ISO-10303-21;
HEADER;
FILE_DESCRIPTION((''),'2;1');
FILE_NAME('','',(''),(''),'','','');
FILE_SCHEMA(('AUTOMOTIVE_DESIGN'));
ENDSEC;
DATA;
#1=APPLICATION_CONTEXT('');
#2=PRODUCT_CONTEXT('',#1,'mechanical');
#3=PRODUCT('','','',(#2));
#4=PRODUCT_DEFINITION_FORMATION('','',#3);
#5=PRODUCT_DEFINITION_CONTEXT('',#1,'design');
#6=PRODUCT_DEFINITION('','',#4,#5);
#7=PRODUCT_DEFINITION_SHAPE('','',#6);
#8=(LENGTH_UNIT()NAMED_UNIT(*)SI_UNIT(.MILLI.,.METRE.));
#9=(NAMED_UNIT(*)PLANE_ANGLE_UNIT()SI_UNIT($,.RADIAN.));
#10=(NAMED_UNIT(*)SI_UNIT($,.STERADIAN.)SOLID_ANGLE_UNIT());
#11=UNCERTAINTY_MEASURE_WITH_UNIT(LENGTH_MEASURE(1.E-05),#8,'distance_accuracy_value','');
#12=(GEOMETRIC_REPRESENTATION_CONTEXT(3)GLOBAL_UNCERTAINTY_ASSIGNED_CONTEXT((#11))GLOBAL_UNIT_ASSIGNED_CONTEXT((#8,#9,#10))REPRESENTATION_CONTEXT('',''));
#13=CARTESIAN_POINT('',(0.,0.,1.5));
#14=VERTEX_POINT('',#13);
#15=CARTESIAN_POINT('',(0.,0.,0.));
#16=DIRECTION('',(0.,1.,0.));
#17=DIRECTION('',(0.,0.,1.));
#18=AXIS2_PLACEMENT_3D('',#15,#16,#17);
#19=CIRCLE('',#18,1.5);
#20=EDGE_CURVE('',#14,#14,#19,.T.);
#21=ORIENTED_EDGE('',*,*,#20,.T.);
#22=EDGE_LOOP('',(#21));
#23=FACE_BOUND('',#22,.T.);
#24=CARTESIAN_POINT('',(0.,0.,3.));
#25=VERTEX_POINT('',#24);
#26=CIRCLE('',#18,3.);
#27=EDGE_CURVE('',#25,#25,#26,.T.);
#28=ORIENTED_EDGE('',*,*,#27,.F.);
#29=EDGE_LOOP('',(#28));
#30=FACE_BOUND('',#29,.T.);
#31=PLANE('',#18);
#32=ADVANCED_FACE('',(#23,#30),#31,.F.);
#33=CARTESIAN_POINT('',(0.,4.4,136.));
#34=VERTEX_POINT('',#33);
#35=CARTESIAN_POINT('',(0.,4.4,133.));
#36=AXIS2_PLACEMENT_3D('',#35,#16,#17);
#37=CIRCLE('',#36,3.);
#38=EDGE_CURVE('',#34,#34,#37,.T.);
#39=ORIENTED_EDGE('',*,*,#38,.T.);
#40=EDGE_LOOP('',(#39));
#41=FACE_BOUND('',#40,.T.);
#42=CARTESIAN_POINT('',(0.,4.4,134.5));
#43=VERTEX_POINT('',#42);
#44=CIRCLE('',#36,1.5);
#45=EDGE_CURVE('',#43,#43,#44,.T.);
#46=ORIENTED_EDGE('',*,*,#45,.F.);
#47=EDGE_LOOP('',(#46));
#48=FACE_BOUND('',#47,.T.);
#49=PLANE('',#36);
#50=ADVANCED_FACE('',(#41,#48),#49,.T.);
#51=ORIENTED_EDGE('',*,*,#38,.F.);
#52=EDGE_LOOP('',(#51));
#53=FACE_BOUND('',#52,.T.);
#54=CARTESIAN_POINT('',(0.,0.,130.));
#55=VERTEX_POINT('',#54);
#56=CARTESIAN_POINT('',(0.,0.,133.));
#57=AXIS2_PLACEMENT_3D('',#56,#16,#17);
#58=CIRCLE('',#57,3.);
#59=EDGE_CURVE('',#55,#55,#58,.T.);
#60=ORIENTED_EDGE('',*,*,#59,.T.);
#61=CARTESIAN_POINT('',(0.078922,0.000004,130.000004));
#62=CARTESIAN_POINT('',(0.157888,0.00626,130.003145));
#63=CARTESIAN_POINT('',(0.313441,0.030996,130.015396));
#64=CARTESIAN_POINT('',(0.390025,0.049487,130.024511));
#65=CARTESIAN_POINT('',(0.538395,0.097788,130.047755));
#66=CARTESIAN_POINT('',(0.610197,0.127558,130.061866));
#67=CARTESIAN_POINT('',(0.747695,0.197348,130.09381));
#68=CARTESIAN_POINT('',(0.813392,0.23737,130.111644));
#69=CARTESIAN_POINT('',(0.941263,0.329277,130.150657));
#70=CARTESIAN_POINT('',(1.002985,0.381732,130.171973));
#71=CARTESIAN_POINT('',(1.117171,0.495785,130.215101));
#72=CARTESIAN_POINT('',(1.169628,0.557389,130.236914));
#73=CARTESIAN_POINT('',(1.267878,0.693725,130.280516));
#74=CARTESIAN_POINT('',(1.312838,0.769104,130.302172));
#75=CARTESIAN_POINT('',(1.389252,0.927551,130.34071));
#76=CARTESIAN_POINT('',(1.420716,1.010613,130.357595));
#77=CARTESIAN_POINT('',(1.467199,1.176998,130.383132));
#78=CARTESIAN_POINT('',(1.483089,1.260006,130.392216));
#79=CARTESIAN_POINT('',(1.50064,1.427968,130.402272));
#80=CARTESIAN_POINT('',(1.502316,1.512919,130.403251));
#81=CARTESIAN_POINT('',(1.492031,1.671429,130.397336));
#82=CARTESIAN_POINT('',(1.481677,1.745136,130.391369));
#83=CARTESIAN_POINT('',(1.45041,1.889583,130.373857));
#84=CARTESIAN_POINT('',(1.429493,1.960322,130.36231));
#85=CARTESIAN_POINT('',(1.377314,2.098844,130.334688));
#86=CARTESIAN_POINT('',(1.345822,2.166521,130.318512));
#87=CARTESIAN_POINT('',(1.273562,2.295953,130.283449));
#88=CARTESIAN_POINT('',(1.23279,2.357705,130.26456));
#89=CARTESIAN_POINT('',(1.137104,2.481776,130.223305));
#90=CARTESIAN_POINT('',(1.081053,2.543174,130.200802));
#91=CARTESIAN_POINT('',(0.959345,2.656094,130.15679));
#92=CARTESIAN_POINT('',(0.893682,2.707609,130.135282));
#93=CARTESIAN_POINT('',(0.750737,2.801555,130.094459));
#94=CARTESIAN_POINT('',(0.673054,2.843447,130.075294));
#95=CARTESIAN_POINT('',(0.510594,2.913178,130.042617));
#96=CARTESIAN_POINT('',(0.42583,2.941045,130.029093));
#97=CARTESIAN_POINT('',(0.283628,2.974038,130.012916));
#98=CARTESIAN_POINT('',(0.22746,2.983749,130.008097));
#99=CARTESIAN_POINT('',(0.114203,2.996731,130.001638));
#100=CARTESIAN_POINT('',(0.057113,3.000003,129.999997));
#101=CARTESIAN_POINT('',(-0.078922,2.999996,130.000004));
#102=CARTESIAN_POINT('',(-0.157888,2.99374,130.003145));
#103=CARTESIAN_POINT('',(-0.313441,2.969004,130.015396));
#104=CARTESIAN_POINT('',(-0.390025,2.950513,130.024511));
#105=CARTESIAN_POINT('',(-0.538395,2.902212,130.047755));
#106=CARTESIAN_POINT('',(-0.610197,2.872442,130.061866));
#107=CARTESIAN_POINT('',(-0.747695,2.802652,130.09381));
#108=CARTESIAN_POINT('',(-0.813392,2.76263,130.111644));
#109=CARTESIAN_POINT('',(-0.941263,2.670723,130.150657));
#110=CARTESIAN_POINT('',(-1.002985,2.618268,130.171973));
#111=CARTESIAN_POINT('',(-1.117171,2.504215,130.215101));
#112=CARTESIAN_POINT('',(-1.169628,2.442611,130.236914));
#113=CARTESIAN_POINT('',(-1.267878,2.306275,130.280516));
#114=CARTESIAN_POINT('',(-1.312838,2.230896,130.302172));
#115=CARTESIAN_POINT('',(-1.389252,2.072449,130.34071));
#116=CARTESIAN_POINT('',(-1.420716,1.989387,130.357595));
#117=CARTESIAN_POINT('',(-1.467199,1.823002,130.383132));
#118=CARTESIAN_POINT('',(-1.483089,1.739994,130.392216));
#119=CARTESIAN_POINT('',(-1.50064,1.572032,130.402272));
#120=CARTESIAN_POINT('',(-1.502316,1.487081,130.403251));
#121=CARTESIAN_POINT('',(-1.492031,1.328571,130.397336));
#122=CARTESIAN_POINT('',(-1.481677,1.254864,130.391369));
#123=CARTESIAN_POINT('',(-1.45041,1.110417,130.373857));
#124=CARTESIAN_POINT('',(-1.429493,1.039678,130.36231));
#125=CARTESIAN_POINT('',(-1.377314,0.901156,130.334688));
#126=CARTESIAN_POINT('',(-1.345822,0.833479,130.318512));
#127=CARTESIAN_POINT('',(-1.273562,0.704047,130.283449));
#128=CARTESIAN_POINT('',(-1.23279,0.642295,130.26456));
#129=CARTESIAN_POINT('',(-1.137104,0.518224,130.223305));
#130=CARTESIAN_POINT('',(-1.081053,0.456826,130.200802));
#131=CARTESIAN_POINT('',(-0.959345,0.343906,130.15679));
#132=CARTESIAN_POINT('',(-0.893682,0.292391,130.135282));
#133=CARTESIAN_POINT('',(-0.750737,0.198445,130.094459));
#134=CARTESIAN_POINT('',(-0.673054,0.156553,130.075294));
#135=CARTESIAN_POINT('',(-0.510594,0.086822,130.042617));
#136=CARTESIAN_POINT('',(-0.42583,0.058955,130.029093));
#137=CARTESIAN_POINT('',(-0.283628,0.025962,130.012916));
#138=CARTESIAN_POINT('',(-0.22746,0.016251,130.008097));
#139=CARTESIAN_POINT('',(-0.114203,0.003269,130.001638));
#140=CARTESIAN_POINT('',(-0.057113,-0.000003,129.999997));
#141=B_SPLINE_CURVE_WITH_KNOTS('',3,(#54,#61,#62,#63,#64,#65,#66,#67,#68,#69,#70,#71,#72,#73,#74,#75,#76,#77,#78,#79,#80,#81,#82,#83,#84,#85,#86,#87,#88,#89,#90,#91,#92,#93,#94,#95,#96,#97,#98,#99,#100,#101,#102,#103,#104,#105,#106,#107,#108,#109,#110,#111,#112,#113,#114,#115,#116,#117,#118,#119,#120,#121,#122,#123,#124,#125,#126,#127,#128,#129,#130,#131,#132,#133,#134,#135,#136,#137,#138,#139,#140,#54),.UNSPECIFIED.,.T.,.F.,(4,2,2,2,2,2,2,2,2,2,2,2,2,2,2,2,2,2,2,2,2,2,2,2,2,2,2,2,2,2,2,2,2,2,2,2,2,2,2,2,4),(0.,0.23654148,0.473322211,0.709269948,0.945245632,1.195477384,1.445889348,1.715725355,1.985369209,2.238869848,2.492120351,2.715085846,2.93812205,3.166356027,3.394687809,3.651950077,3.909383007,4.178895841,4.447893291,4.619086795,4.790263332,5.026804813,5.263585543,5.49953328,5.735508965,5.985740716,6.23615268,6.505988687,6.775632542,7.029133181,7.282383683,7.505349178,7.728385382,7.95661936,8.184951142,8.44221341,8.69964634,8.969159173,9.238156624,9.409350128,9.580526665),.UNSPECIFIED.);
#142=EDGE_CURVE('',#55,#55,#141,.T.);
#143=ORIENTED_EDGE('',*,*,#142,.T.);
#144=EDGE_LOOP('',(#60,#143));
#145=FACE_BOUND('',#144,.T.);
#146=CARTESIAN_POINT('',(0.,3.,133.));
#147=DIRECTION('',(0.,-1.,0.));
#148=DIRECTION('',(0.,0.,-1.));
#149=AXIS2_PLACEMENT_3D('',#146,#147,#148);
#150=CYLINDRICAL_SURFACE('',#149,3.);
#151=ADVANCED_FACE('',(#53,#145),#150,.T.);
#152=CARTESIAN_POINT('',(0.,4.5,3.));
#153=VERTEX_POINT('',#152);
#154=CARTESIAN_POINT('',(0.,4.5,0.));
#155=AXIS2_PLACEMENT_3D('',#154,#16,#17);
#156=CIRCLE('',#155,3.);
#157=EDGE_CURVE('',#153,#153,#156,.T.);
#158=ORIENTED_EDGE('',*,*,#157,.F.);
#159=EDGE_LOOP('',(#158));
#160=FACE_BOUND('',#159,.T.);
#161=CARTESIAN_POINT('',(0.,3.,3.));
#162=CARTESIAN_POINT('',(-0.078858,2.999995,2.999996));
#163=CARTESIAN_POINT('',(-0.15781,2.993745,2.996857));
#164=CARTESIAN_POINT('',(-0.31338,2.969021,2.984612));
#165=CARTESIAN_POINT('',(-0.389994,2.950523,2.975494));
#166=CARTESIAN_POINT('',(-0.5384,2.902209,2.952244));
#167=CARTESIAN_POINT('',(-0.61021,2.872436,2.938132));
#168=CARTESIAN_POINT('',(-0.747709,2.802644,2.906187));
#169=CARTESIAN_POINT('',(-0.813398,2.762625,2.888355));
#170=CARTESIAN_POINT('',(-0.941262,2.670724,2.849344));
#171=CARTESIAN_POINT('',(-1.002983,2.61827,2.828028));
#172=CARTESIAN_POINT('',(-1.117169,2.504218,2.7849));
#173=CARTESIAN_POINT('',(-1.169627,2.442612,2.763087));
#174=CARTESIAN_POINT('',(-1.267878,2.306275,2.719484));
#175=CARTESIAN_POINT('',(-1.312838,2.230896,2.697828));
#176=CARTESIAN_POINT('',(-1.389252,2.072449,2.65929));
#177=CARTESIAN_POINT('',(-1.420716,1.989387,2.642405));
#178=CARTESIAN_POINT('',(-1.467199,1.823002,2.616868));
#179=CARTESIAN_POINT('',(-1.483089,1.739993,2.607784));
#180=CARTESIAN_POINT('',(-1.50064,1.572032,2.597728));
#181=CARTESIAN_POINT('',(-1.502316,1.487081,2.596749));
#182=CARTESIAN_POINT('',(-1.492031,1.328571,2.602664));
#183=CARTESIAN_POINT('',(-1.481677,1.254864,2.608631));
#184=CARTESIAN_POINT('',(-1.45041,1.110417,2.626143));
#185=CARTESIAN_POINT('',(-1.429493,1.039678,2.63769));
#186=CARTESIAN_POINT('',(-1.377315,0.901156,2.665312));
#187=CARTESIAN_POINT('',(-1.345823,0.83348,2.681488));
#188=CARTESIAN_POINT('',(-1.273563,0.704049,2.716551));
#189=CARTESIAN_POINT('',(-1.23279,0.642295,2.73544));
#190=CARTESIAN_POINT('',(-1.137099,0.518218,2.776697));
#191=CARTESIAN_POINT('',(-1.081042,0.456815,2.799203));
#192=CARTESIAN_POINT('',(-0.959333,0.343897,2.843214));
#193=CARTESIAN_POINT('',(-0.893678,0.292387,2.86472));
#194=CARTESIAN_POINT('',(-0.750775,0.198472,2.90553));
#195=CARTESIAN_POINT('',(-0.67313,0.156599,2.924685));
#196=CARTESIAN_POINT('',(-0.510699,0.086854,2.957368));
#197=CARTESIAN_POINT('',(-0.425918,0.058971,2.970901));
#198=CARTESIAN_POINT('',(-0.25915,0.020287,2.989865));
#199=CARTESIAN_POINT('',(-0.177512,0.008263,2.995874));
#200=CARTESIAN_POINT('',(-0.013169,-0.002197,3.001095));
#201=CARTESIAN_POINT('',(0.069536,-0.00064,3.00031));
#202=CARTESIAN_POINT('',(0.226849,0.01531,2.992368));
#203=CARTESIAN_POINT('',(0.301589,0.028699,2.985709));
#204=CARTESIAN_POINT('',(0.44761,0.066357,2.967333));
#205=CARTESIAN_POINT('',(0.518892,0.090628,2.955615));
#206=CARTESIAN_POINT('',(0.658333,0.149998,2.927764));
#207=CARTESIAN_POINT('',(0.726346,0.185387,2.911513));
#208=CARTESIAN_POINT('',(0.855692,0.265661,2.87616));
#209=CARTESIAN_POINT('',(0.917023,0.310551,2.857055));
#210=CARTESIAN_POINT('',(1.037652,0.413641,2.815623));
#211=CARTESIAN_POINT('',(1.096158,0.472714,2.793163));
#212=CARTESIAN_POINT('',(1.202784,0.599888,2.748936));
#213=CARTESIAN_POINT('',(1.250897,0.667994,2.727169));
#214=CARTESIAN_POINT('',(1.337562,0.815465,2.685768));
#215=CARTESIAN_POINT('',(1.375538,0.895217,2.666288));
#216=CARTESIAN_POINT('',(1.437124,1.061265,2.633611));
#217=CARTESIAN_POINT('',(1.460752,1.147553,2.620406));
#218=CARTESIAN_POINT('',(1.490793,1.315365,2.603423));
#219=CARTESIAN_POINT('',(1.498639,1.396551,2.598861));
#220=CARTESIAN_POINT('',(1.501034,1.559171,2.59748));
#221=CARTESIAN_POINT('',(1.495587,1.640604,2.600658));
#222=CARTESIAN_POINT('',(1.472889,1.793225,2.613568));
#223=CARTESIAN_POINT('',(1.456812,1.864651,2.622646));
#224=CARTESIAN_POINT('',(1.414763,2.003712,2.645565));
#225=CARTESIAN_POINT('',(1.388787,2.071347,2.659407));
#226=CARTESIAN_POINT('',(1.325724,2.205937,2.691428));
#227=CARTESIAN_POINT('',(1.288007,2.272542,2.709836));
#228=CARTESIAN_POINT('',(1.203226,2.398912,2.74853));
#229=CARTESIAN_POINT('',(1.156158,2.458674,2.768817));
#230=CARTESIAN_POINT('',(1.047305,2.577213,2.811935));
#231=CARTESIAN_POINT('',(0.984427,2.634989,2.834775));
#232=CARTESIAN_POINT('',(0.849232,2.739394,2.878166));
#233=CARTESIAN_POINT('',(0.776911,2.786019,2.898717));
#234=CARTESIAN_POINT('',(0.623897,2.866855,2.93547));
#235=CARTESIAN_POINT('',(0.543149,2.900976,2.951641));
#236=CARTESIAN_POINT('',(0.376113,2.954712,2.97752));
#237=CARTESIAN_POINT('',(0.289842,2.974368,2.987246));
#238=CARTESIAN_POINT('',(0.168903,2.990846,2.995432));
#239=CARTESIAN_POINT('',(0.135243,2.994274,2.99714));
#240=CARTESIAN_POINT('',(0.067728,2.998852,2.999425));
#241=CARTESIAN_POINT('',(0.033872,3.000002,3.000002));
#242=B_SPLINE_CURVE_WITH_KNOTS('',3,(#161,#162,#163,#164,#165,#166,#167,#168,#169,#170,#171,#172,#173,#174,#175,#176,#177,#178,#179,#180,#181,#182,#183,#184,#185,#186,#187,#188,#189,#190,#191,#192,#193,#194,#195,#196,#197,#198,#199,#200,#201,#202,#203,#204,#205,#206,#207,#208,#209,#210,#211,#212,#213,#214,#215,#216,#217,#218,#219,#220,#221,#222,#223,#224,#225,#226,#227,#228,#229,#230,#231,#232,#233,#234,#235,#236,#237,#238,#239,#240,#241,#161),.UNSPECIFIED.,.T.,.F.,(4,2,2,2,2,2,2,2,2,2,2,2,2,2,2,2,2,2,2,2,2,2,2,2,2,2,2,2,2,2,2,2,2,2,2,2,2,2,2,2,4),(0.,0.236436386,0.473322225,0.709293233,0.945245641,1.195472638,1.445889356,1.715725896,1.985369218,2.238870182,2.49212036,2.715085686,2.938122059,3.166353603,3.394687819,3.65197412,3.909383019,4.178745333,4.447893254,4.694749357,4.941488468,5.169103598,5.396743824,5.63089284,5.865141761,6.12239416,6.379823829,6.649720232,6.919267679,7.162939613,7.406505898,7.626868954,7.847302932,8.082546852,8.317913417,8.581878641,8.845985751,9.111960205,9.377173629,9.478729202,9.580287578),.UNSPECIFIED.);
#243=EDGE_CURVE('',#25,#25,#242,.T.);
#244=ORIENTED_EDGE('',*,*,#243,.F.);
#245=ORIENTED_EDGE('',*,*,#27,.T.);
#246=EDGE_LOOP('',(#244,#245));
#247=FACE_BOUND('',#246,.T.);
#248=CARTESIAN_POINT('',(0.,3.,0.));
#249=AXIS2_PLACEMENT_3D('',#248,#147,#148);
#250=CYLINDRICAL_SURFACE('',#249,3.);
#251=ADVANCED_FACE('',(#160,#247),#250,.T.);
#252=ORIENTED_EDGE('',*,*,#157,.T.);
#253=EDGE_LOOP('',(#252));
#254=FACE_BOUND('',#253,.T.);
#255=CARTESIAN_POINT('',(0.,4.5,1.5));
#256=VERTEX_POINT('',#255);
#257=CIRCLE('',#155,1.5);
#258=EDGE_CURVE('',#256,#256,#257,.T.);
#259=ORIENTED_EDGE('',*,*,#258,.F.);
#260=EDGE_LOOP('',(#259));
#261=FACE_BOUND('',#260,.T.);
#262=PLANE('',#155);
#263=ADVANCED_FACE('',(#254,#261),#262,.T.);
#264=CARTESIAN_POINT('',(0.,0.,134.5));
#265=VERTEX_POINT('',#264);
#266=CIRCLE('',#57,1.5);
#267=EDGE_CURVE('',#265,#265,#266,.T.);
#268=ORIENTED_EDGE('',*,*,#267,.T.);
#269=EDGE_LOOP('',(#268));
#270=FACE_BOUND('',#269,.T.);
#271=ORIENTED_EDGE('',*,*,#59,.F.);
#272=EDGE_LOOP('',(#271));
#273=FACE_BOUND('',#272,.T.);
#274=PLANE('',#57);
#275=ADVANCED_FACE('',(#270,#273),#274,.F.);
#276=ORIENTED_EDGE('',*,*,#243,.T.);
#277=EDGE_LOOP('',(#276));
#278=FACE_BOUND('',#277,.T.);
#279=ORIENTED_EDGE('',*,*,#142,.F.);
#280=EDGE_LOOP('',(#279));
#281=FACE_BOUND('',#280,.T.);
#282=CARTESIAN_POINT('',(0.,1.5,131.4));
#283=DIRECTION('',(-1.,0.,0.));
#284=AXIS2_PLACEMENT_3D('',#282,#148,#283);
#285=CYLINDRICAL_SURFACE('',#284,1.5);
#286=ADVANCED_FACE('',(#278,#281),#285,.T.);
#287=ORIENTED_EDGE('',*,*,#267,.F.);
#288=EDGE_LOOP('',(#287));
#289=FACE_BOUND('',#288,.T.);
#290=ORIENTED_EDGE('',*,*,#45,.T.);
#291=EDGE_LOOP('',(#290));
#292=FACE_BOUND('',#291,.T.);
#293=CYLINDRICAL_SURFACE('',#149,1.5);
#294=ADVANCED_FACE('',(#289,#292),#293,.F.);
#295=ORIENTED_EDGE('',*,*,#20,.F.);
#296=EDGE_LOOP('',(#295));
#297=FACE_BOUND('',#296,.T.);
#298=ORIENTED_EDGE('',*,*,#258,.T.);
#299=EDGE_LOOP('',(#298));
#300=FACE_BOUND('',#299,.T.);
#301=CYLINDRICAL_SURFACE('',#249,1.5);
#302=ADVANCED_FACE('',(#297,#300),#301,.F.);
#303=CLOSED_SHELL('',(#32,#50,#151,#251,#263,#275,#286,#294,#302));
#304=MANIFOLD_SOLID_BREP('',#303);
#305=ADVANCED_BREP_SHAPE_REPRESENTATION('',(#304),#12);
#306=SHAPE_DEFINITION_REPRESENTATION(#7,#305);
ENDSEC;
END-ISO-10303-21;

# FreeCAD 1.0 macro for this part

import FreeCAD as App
import Part
import Sketcher

V = App.Vector
Q = App.Units.Quantity

doc = App.newDocument("Part")
body = doc.addObject("PartDesign::Body", "Body")

# Sketch on XZ plane
sketch1 = body.newObject("Sketcher::SketchObject", "Sketch")
sketch1.AttachmentSupport = (doc.getObject("XZ_Plane"), [""])
sketch1.MapMode = "FlatFace"
sketch1.addGeometry([
    Part.Circle(V(0, 0, 0), V(0, 0, 1), 3),
    Part.Circle(V(0, 0, 0), V(0, 0, 1), 1.5),
], False)
sketch1.addConstraint([
    Sketcher.Constraint("Coincident", 0, 3, -1, 1),
    Sketcher.Constraint("Coincident", 1, 3, -1, 1),
    Sketcher.Constraint("Diameter", 0, Q("6 mm")),
    Sketcher.Constraint("Diameter", 1, Q("3 mm")),
])
pad1 = body.newObject("PartDesign::Pad", "Pad")
pad1.Profile = sketch1
pad1.Length = 3
pad1.Reversed = True
body2 = doc.addObject("PartDesign::Body", "Body001")

# Sketch on XZ plane
sketch2 = body2.newObject("Sketcher::SketchObject", "Sketch001")
sketch2.AttachmentSupport = (doc.getObject("XZ_Plane001"), [""])
sketch2.MapMode = "FlatFace"
sketch2.addGeometry([
    Part.Circle(V(0, 133, 0), V(0, 0, 1), 3),
    Part.Circle(V(0, 133, 0), V(0, 0, 1), 1.5),
], False)
sketch2.addConstraint([
    Sketcher.Constraint("Coincident", 1, 3, 0, 3),
    Sketcher.Constraint("PointOnObject", 0, 3, -2),
    Sketcher.Constraint("Diameter", 0, Q("6 mm")),
    Sketcher.Constraint("Diameter", 1, Q("3 mm")),
    Sketcher.Constraint("DistanceY", -1, 1, 0, 3, Q("133 mm")),
])
pad2 = body2.newObject("PartDesign::Pad", "Pad001")
pad2.Profile = sketch2
pad2.Length = 3
pad2.Reversed = True
body.AllowCompound = True
doc.recompute()

boolean = body.newObject("PartDesign::Boolean", "Boolean")
boolean.Type = "Fuse"
boolean.addObjects([body2])

# Sketch on XY plane
sketch3 = body.newObject("Sketcher::SketchObject", "Sketch002")
sketch3.AttachmentSupport = (doc.getObject("XY_Plane"), [""])
sketch3.MapMode = "FlatFace"
sketch3.AttachmentOffset = App.Placement(V(0, 0, 1.6), App.Rotation())
sketch3.addGeometry(Part.Circle(V(0, 1.5, 0), V(0, 0, 1), 1.5), False)
sketch3.addConstraint([
    Sketcher.Constraint("PointOnObject", 0, 3, -2),
    Sketcher.Constraint("Diameter", 0, Q("3 mm")),
    Sketcher.Constraint("DistanceY", -1, 1, 0, 3, Q("1.5 mm")),
])
pad3 = body.newObject("PartDesign::Pad", "Pad002")
pad3.Profile = sketch3
pad3.Length = 129.8

# Sketch on XZ plane
sketch4 = body.newObject("Sketcher::SketchObject", "Sketch003")
sketch4.AttachmentSupport = (doc.getObject("XZ_Plane"), [""])
sketch4.MapMode = "FlatFace"
sketch4.AttachmentOffset = App.Placement(V(0, 0, -3), App.Rotation())
sketch4.addGeometry([
    Part.Circle(V(0, 0, 0), V(0, 0, 1), 3),
    Part.Circle(V(0, 0, 0), V(0, 0, 1), 1.5),
], False)
sketch4.addConstraint([
    Sketcher.Constraint("Coincident", 0, 3, -1, 1),
    Sketcher.Constraint("Coincident", 1, 3, -1, 1),
    Sketcher.Constraint("Diameter", 0, Q("6 mm")),
    Sketcher.Constraint("Diameter", 1, Q("3 mm")),
])
pad4 = body.newObject("PartDesign::Pad", "Pad003")
pad4.Profile = sketch4
pad4.Length = 1.5
pad4.Reversed = True

# Sketch on XZ plane
sketch5 = body.newObject("Sketcher::SketchObject", "Sketch004")
sketch5.AttachmentSupport = (doc.getObject("XZ_Plane"), [""])
sketch5.MapMode = "FlatFace"
sketch5.AttachmentOffset = App.Placement(V(0, 0, -3), App.Rotation())
sketch5.addGeometry([
    Part.Circle(V(0, 133, 0), V(0, 0, 1), 3),
    Part.Circle(V(0, 133, 0), V(0, 0, 1), 1.5),
], False)
sketch5.addConstraint([
    Sketcher.Constraint("Coincident", 1, 3, 0, 3),
    Sketcher.Constraint("PointOnObject", 0, 3, -2),
    Sketcher.Constraint("Diameter", 0, Q("6 mm")),
    Sketcher.Constraint("Diameter", 1, Q("3 mm")),
    Sketcher.Constraint("DistanceY", -1, 1, 0, 3, Q("133 mm")),
])
pad5 = body.newObject("PartDesign::Pad", "Pad004")
pad5.Profile = sketch5
pad5.Length = 1.4
pad5.Reversed = True

doc.recompute()
